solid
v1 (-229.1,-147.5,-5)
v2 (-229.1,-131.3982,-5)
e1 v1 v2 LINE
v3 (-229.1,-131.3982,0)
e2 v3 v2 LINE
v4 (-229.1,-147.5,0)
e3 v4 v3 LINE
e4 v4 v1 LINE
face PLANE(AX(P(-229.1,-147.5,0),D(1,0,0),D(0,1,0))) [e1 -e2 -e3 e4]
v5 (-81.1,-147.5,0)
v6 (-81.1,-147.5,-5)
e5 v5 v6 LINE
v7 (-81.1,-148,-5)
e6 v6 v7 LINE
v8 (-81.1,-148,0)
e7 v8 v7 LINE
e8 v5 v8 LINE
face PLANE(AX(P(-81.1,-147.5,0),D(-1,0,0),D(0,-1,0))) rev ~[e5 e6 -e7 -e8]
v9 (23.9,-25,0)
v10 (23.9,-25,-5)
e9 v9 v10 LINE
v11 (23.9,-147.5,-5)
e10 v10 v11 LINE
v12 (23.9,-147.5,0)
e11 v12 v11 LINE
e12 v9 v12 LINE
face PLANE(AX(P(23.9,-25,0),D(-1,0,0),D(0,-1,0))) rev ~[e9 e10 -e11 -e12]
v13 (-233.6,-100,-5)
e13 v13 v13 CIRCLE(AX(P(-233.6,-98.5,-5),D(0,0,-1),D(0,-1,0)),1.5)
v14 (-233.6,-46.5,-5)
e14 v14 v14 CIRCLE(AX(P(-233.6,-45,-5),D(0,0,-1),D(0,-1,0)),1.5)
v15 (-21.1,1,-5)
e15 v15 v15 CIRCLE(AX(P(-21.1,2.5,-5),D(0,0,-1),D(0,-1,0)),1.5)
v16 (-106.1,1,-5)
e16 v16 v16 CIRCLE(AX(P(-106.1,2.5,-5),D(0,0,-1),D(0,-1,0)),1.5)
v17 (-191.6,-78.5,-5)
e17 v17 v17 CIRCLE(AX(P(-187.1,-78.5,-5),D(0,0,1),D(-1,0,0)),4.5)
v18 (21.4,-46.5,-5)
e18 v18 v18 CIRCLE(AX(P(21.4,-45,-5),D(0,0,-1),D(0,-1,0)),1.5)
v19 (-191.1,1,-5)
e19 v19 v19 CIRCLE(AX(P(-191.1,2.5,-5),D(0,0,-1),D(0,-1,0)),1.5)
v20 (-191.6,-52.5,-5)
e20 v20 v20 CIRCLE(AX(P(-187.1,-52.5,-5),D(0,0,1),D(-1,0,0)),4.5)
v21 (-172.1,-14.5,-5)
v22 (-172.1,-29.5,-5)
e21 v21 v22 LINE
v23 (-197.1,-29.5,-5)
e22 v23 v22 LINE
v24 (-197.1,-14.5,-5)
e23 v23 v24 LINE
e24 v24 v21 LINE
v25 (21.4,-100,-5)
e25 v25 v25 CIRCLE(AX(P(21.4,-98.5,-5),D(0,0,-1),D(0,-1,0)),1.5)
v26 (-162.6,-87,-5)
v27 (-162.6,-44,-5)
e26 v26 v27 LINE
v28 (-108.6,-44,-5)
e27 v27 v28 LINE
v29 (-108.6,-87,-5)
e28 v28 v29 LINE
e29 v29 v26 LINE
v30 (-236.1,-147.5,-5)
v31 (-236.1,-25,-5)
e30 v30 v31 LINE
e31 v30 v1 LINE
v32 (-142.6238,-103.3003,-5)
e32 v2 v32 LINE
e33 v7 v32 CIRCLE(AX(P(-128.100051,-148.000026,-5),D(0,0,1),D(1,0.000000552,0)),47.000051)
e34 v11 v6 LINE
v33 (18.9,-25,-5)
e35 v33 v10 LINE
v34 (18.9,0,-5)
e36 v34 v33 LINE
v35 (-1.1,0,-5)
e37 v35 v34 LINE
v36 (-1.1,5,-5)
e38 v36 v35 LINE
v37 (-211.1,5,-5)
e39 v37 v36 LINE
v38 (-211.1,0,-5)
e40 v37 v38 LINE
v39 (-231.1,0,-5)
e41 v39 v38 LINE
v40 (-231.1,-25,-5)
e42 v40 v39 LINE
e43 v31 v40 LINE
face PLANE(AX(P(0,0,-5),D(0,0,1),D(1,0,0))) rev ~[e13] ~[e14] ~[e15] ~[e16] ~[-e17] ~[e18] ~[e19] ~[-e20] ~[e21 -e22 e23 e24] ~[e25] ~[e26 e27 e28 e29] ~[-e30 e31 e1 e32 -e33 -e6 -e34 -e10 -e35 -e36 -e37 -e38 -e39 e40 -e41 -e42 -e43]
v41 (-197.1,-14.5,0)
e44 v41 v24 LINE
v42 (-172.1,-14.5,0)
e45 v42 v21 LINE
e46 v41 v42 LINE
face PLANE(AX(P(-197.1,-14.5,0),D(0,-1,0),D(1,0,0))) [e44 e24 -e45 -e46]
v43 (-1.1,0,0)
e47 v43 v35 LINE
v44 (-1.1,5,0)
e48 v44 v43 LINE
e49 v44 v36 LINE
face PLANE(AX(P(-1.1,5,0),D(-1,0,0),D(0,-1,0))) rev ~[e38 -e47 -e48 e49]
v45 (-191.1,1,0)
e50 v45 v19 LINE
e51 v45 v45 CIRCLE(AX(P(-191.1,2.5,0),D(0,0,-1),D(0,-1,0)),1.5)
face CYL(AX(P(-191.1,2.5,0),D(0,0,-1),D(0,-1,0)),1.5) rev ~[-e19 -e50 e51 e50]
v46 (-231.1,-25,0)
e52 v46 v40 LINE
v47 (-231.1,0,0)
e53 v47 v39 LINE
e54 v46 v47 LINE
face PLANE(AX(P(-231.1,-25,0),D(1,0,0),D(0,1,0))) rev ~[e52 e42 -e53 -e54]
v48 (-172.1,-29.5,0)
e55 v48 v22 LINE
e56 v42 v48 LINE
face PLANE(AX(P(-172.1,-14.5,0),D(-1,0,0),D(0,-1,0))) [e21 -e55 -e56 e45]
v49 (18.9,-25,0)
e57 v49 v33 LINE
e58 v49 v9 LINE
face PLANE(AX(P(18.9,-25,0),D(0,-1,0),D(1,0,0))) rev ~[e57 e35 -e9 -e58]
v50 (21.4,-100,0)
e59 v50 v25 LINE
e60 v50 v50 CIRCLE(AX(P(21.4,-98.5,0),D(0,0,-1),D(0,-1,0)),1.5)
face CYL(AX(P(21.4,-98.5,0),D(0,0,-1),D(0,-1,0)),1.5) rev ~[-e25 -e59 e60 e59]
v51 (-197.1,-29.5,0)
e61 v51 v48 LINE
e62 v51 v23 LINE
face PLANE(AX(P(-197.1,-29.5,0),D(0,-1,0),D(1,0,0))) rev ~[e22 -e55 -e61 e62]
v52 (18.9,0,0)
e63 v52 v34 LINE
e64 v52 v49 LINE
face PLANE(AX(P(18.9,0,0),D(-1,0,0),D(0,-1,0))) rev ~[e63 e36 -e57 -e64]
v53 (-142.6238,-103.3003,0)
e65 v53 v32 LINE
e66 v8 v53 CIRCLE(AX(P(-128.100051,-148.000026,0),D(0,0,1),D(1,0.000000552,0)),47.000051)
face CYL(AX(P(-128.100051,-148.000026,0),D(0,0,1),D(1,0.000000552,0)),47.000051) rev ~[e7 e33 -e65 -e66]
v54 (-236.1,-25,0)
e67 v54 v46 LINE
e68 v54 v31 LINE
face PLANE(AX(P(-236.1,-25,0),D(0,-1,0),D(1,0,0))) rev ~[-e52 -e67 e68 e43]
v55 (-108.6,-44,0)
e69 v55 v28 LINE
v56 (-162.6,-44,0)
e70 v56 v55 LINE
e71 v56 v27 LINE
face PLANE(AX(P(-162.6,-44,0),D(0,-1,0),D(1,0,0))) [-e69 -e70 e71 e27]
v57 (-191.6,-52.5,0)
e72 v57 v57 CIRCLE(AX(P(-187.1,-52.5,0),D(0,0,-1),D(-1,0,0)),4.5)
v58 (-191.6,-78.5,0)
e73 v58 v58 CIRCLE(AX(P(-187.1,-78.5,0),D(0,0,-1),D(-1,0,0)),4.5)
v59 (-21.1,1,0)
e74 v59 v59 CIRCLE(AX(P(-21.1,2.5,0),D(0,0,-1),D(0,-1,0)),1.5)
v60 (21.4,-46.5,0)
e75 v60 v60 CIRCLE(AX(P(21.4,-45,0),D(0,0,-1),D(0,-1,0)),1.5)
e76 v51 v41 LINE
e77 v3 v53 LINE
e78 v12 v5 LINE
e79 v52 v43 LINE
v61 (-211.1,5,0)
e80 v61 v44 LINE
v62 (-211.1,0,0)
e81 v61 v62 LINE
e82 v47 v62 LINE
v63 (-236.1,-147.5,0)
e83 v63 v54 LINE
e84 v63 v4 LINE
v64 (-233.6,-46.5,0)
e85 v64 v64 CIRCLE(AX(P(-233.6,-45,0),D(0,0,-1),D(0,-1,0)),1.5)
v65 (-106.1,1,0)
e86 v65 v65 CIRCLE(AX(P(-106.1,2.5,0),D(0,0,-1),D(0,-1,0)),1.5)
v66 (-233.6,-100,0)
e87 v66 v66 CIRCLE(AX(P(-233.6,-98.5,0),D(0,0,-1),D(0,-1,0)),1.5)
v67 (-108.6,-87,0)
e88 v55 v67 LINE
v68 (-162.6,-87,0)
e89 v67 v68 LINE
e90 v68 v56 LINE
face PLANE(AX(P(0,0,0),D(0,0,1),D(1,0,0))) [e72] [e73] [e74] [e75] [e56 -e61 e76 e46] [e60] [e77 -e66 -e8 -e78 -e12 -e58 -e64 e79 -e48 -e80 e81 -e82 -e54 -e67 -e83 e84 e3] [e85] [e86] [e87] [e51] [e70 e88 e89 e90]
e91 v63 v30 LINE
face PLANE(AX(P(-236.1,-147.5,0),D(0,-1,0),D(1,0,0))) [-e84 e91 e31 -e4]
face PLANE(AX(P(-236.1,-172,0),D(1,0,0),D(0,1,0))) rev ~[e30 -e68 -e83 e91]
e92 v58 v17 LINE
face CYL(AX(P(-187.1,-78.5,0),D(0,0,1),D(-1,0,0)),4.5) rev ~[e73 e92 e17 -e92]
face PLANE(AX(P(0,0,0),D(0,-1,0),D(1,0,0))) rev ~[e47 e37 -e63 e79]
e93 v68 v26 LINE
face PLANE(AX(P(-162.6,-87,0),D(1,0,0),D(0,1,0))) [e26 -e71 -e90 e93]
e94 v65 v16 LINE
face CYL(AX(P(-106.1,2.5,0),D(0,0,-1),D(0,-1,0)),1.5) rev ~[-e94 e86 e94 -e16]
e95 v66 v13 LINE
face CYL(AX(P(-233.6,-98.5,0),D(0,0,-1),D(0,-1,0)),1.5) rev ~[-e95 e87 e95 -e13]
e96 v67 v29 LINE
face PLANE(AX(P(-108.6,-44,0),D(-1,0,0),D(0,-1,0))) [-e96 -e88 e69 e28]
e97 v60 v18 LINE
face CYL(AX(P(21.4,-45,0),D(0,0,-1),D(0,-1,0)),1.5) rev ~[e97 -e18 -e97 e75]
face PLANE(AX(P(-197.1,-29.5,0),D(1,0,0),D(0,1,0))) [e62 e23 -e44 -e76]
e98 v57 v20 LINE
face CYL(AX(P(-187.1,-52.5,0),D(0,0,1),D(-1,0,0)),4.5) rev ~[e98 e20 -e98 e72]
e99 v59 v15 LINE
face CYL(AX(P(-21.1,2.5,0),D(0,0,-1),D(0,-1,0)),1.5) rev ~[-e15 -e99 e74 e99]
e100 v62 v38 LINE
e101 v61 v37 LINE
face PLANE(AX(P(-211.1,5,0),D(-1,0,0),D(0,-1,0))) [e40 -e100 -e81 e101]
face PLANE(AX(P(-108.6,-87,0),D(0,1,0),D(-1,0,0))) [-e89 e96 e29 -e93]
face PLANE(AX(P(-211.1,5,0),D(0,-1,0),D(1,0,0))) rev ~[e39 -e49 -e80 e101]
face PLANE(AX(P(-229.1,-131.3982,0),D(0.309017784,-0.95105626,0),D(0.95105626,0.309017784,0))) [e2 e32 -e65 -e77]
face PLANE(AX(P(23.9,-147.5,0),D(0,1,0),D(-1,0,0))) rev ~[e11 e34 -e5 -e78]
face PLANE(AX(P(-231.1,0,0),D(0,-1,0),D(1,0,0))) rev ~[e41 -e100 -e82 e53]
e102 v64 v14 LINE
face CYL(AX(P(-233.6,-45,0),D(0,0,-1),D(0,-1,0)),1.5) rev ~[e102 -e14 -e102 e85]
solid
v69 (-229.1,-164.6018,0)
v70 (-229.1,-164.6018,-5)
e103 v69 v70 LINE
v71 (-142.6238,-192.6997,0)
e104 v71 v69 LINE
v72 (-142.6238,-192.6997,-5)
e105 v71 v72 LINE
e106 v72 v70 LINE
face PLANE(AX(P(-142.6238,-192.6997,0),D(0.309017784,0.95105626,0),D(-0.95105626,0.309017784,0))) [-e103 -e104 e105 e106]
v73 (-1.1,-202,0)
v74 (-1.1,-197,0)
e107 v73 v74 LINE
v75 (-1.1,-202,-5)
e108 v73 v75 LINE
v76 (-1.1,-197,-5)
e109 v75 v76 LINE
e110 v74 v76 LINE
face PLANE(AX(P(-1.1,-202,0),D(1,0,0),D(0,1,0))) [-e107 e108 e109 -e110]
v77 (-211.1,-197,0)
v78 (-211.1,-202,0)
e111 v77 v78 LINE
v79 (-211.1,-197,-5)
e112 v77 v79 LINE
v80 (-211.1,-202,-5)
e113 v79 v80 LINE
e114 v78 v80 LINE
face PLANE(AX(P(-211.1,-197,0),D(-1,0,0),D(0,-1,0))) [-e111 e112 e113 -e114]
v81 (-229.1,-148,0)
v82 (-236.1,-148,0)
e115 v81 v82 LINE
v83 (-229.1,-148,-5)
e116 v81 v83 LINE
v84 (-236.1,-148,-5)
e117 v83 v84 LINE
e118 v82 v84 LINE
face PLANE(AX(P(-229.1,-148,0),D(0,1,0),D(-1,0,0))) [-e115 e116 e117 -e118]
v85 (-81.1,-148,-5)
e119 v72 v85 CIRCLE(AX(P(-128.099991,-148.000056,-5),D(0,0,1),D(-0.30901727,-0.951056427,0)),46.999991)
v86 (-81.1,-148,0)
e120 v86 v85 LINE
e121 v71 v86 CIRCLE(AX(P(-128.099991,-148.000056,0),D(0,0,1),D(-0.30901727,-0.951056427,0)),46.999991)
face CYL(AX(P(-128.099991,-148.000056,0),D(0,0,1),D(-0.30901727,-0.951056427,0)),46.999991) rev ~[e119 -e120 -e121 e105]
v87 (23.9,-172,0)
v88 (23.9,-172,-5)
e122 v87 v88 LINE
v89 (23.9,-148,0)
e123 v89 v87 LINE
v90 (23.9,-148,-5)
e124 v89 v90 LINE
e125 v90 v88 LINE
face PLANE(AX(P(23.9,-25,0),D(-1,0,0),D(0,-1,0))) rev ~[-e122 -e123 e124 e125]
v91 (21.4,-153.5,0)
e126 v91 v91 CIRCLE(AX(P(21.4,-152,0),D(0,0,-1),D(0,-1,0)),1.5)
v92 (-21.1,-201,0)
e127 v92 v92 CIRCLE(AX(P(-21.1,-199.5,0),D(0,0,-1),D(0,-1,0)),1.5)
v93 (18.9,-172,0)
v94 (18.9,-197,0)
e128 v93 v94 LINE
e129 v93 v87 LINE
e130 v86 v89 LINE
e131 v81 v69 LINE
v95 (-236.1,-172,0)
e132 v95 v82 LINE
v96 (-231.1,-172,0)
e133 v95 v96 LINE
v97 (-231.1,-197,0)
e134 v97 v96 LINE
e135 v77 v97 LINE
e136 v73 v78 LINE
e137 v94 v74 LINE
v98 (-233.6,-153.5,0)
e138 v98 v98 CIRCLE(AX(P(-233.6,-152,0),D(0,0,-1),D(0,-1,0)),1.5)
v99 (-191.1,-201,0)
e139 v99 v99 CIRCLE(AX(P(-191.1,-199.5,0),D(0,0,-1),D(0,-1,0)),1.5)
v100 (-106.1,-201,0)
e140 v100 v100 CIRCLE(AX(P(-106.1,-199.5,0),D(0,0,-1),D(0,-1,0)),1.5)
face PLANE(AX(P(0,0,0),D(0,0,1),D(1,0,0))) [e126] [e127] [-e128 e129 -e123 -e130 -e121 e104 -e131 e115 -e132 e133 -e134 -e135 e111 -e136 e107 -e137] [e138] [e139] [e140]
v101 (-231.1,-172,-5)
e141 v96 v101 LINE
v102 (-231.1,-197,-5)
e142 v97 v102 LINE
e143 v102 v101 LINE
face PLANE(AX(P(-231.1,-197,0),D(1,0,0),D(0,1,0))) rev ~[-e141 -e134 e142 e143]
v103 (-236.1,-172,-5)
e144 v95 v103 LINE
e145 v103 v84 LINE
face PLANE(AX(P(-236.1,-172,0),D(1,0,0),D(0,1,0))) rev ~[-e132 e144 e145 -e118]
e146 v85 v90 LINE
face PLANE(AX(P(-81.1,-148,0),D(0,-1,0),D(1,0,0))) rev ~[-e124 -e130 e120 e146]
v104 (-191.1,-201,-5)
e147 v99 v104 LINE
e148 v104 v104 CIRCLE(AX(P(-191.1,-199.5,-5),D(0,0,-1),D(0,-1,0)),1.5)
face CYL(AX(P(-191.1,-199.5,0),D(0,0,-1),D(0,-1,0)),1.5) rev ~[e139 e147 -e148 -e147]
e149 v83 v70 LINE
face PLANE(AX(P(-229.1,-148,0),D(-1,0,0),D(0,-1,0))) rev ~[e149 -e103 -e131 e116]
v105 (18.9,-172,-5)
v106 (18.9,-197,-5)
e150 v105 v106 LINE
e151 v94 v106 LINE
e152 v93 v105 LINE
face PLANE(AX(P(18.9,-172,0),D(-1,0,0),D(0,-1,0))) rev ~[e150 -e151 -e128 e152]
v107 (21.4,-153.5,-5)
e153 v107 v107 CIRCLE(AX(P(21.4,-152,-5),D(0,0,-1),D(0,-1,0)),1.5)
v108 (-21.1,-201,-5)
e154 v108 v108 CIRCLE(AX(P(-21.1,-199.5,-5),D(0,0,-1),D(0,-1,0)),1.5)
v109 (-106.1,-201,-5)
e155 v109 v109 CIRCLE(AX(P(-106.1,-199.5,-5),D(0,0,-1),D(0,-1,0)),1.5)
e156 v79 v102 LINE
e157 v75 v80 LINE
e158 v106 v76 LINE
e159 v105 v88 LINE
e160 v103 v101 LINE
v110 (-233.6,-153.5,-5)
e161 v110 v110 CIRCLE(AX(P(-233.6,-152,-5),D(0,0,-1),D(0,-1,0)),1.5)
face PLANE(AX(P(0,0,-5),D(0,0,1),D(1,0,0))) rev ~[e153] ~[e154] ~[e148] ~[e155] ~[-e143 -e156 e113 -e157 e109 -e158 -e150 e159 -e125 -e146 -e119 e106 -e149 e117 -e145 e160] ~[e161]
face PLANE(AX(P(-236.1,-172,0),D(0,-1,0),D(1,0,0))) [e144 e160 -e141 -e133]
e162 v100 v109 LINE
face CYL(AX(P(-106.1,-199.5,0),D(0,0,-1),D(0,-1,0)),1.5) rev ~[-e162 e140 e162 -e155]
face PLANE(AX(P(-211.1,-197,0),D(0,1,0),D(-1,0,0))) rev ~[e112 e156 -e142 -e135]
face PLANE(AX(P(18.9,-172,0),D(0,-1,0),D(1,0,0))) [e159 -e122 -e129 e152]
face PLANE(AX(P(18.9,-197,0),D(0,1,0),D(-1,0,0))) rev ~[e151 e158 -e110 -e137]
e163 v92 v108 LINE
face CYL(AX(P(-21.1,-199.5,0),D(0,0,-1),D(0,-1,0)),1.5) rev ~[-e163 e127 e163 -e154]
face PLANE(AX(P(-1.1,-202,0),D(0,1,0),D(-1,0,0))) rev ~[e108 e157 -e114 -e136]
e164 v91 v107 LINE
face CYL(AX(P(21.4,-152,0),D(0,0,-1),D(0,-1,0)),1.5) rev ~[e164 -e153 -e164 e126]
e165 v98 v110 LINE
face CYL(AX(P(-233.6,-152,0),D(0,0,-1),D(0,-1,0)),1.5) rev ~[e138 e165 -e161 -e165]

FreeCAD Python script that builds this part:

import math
import FreeCAD as App
import Part
import Sketcher

V = App.Vector
Q = App.Units.Quantity

doc = App.newDocument("Part")
body = doc.addObject("PartDesign::Body", "Body")
body.AllowCompound = True

# Sketch on XY plane
sketch1 = doc.addObject("Sketcher::SketchObject", "Sketch")
body.addObject(sketch1)
sketch1.AttachmentSupport = (doc.XY_Plane, [""])
sketch1.MapMode = "FlatFace"
sketch1.addGeometry(Part.LineSegment(V(-211, -202, 0), V(-1, -202, 0)), False)
sketch1.addGeometry(Part.LineSegment(V(-1, -202, 0), V(-1, -197, 0)), False)
sketch1.addGeometry(Part.LineSegment(V(-1, -197, 0), V(19, -197, 0)), False)
sketch1.addGeometry(Part.LineSegment(V(19, -197, 0), V(19, -172, 0)), False)
sketch1.addGeometry(Part.LineSegment(V(19, -172, 0), V(24, -172, 0)), False)
sketch1.addGeometry(Part.LineSegment(V(24, -172, 0), V(24, -25, 0)), False)
sketch1.addGeometry(Part.LineSegment(V(24, -25, 0), V(19, -25, 0)), False)
sketch1.addGeometry(Part.LineSegment(V(19, -25, 0), V(19, 0, 0)), False)
sketch1.addGeometry(Part.LineSegment(V(19, 0, 0), V(-1, 0, 0)), False)
sketch1.addGeometry(Part.LineSegment(V(-1, 0, 0), V(-1, 5, 0)), False)
sketch1.addGeometry(Part.LineSegment(V(-1, 5, 0), V(-211, 5, 0)), False)
sketch1.addGeometry(Part.LineSegment(V(-211, 5, 0), V(-211, 0, 0)), False)
sketch1.addGeometry(Part.LineSegment(V(-211, 0, 0), V(-231, 0, 0)), False)
sketch1.addGeometry(Part.LineSegment(V(-231, 0, 0), V(-231, -25, 0)), False)
sketch1.addGeometry(Part.LineSegment(V(-231, -25, 0), V(-236, -25, 0)), False)
sketch1.addGeometry(Part.LineSegment(V(-236, -25, 0), V(-236, -172, 0)), False)
sketch1.addGeometry(Part.LineSegment(V(-236, -172, 0), V(-231, -172, 0)), False)
sketch1.addGeometry(Part.LineSegment(V(-231, -172, 0), V(-231, -197, 0)), False)
sketch1.addGeometry(Part.LineSegment(V(-231, -197, 0), V(-211, -197, 0)), False)
sketch1.addGeometry(Part.LineSegment(V(-211, -197, 0), V(-211, -202, 0)), False)
sketch1.addConstraint(Sketcher.Constraint("Coincident", 0, 2, 1, 1))
sketch1.addConstraint(Sketcher.Constraint("Coincident", 1, 2, 2, 1))
sketch1.addConstraint(Sketcher.Constraint("Coincident", 2, 2, 3, 1))
sketch1.addConstraint(Sketcher.Constraint("Coincident", 3, 2, 4, 1))
sketch1.addConstraint(Sketcher.Constraint("Coincident", 4, 2, 5, 1))
sketch1.addConstraint(Sketcher.Constraint("Coincident", 5, 2, 6, 1))
sketch1.addConstraint(Sketcher.Constraint("Coincident", 6, 2, 7, 1))
sketch1.addConstraint(Sketcher.Constraint("Coincident", 7, 2, 8, 1))
sketch1.addConstraint(Sketcher.Constraint("Coincident", 8, 2, 9, 1))
sketch1.addConstraint(Sketcher.Constraint("Coincident", 9, 2, 10, 1))
sketch1.addConstraint(Sketcher.Constraint("Coincident", 10, 2, 11, 1))
sketch1.addConstraint(Sketcher.Constraint("Coincident", 11, 2, 12, 1))
sketch1.addConstraint(Sketcher.Constraint("Coincident", 12, 2, 13, 1))
sketch1.addConstraint(Sketcher.Constraint("Coincident", 13, 2, 14, 1))
sketch1.addConstraint(Sketcher.Constraint("Coincident", 14, 2, 15, 1))
sketch1.addConstraint(Sketcher.Constraint("Coincident", 15, 2, 16, 1))
sketch1.addConstraint(Sketcher.Constraint("Coincident", 16, 2, 17, 1))
sketch1.addConstraint(Sketcher.Constraint("Coincident", 17, 2, 18, 1))
sketch1.addConstraint(Sketcher.Constraint("Coincident", 18, 2, 19, 1))
sketch1.addConstraint(Sketcher.Constraint("Coincident", 19, 2, 0, 1))
sketch1.addConstraint(Sketcher.Constraint("Horizontal", 0))
sketch1.addConstraint(Sketcher.Constraint("Vertical", 1))
sketch1.addConstraint(Sketcher.Constraint("Horizontal", 2))
sketch1.addConstraint(Sketcher.Constraint("Vertical", 3))
sketch1.addConstraint(Sketcher.Constraint("Horizontal", 4))
sketch1.addConstraint(Sketcher.Constraint("Vertical", 5))
sketch1.addConstraint(Sketcher.Constraint("Horizontal", 6))
sketch1.addConstraint(Sketcher.Constraint("Vertical", 7))
sketch1.addConstraint(Sketcher.Constraint("Horizontal", 8))
sketch1.addConstraint(Sketcher.Constraint("Vertical", 9))
sketch1.addConstraint(Sketcher.Constraint("Horizontal", 10))
sketch1.addConstraint(Sketcher.Constraint("Vertical", 11))
sketch1.addConstraint(Sketcher.Constraint("Horizontal", 12))
sketch1.addConstraint(Sketcher.Constraint("Vertical", 13))
sketch1.addConstraint(Sketcher.Constraint("Horizontal", 14))
sketch1.addConstraint(Sketcher.Constraint("Vertical", 15))
sketch1.addConstraint(Sketcher.Constraint("Horizontal", 16))
sketch1.addConstraint(Sketcher.Constraint("Vertical", 17))
sketch1.addConstraint(Sketcher.Constraint("Horizontal", 18))
sketch1.addConstraint(Sketcher.Constraint("Vertical", 19))
sketch1.addConstraint(Sketcher.Constraint("PointOnObject", 7, 2, -1))
sketch1.addConstraint(Sketcher.Constraint("PointOnObject", 11, 2, -1))
sketch1.addConstraint(Sketcher.Constraint("Horizontal", 6, 2, 13, 2))
sketch1.addConstraint(Sketcher.Constraint("Horizontal", 4, 2, 15, 2))
sketch1.addConstraint(Sketcher.Constraint("Horizontal", 2, 2, 17, 2))
sketch1.addConstraint(Sketcher.Constraint("Vertical", 3, 2, 6, 2))
sketch1.addConstraint(Sketcher.Constraint("Vertical", 1, 2, 8, 2))
sketch1.addConstraint(Sketcher.Constraint("Vertical", 13, 2, 16, 2))
sketch1.addConstraint(Sketcher.Constraint("Vertical", 11, 2, 18, 2))
sketch1.addConstraint(Sketcher.Constraint("Equal", 8, 12))
sketch1.addConstraint(Sketcher.Constraint("Equal", 6, 14))
sketch1.addConstraint(Sketcher.Constraint("Equal", 16, 1))
sketch1.addConstraint(Sketcher.Constraint("Equal", 3, 7))
sketch1.addConstraint(Sketcher.Constraint("Equal", 1, 9))
sketch1.addConstraint(Sketcher.Constraint("DistanceX", 0, 1, 0, 2, Q("210 mm")))
sketch1.addConstraint(Sketcher.Constraint("DistanceX", 2, 1, 2, 2, Q("20 mm")))
sketch1.addConstraint(Sketcher.Constraint("DistanceX", 4, 1, 4, 2, Q("5 mm")))
sketch1.addConstraint(Sketcher.Constraint("DistanceY", 3, 1, 3, 2, Q("25 mm")))
sketch1.addConstraint(Sketcher.Constraint("DistanceY", 5, 1, 5, 2, Q("147 mm")))
sketch1.addConstraint(Sketcher.Constraint("DistanceX", 0, 2, -1, 1, Q("1.1 mm")))
pad1 = doc.addObject("PartDesign::Pad", "Pad")
body.addObject(pad1)
pad1.Profile = sketch1
pad1.Length = 5
pad1.Reversed = True

# Sketch on XY plane
sketch2 = doc.addObject("Sketcher::SketchObject", "Sketch001")
body.addObject(sketch2)
sketch2.AttachmentSupport = (doc.XY_Plane, [""])
sketch2.MapMode = "FlatFace"
sketch2.addGeometry(Part.Circle(V(-21.1, 2.5, 0), V(0, 0, 1), 1.5), False)
sketch2.addGeometry(Part.Circle(V(-106.1, 2.5, 0), V(0, 0, 1), 1.5), False)
sketch2.addGeometry(Part.Circle(V(-191.1, 2.5, 0), V(0, 0, 1), 1.5), False)
sketch2.addGeometry(Part.Circle(V(-233.6, -45, 0), V(0, 0, 1), 1.5), False)
sketch2.addGeometry(Part.Circle(V(-233.6, -98.5, 0), V(0, 0, 1), 1.5), False)
sketch2.addGeometry(Part.Circle(V(-233.6, -152, 0), V(0, 0, 1), 1.5), False)
sketch2.addGeometry(Part.Circle(V(-191.1, -199.5, 0), V(0, 0, 1), 1.5), False)
sketch2.addGeometry(Part.Circle(V(-106.1, -199.5, 0), V(0, 0, 1), 1.5), False)
sketch2.addGeometry(Part.Circle(V(-21.1, -199.5, 0), V(0, 0, 1), 1.5), False)
sketch2.addGeometry(Part.Circle(V(21.4, -152, 0), V(0, 0, 1), 1.5), False)
sketch2.addGeometry(Part.Circle(V(21.4, -98.5, 0), V(0, 0, 1), 1.5), False)
sketch2.addGeometry(Part.Circle(V(21.4, -45, 0), V(0, 0, 1), 1.5), False)
sketch2.addConstraint(Sketcher.Constraint("Equal", 0, 1))
sketch2.addConstraint(Sketcher.Constraint("Equal", 1, 2))
sketch2.addConstraint(Sketcher.Constraint("Equal", 2, 3))
sketch2.addConstraint(Sketcher.Constraint("Equal", 3, 4))
sketch2.addConstraint(Sketcher.Constraint("Equal", 4, 5))
sketch2.addConstraint(Sketcher.Constraint("Equal", 5, 6))
sketch2.addConstraint(Sketcher.Constraint("Equal", 6, 7))
sketch2.addConstraint(Sketcher.Constraint("Equal", 7, 8))
sketch2.addConstraint(Sketcher.Constraint("Equal", 8, 9))
sketch2.addConstraint(Sketcher.Constraint("Equal", 9, 10))
sketch2.addConstraint(Sketcher.Constraint("Equal", 10, 11))
sketch2.addConstraint(Sketcher.Constraint("Horizontal", 0, 3, 1, 3))
sketch2.addConstraint(Sketcher.Constraint("Horizontal", 1, 3, 2, 3))
sketch2.addConstraint(Sketcher.Constraint("Horizontal", 6, 3, 7, 3))
sketch2.addConstraint(Sketcher.Constraint("Horizontal", 7, 3, 8, 3))
sketch2.addConstraint(Sketcher.Constraint("Horizontal", 5, 3, 9, 3))
sketch2.addConstraint(Sketcher.Constraint("Horizontal", 4, 3, 10, 3))
sketch2.addConstraint(Sketcher.Constraint("Horizontal", 3, 3, 11, 3))
sketch2.addConstraint(Sketcher.Constraint("Vertical", 3, 3, 4, 3))
sketch2.addConstraint(Sketcher.Constraint("Vertical", 4, 3, 5, 3))
sketch2.addConstraint(Sketcher.Constraint("Vertical", 2, 3, 6, 3))
sketch2.addConstraint(Sketcher.Constraint("Vertical", 1, 3, 7, 3))
sketch2.addConstraint(Sketcher.Constraint("Vertical", 0, 3, 8, 3))
sketch2.addConstraint(Sketcher.Constraint("Vertical", 9, 3, 10, 3))
sketch2.addConstraint(Sketcher.Constraint("Vertical", 10, 3, 11, 3))
sketch2.addConstraint(Sketcher.Constraint("Diameter", 0, Q("3 mm")))
sketch2.addConstraint(Sketcher.Constraint("DistanceY", 3, 3, -1, 1, Q("45 mm")))
sketch2.addConstraint(Sketcher.Constraint("DistanceY", 5, 3, -1, 1, Q("152 mm")))
sketch2.addConstraint(Sketcher.Constraint("DistanceX", 1, 3, 0, 3, Q("85 mm")))
sketch2.addConstraint(Sketcher.Constraint("DistanceX", 2, 3, 1, 3, Q("85 mm")))
sketch2.addConstraint(Sketcher.Constraint("DistanceY", 4, 3, 2, 3, Q("101 mm")))
sketch2.addConstraint(Sketcher.Constraint("DistanceY", 6, 3, 4, 3, Q("101 mm")))
sketch2.addConstraint(Sketcher.Constraint("DistanceX", 0, 3, -1, 1, Q("21.1 mm")))
sketch2.addConstraint(Sketcher.Constraint("DistanceY", -1, 1, 0, 3, Q("2.5 mm")))
sketch2.addConstraint(Sketcher.Constraint("DistanceX", 3, 3, -1, 1, Q("233.6 mm")))
sketch2.addConstraint(Sketcher.Constraint("DistanceX", -1, 1, 9, 3, Q("21.4 mm")))
doc.recompute()
hole = doc.addObject("PartDesign::Hole", "Hole")
body.addObject(hole)
hole.Profile = sketch2
hole.ThreadType = "None"
hole.Diameter = 3
hole.DepthType = "ThroughAll"

# Sketch on XY plane
sketch3 = doc.addObject("Sketcher::SketchObject", "Sketch002")
body.addObject(sketch3)
sketch3.AttachmentSupport = (doc.XY_Plane, [""])
sketch3.MapMode = "FlatFace"
sketch3.addGeometry(Part.ArcOfCircle(Part.Circle(V(-128.1, -148, 0), V(0, 0, 1), 47), math.radians(-108), math.radians(0)), False)
sketch3.addGeometry(Part.ArcOfCircle(Part.Circle(V(-128.1, -148, 0), V(0, 0, 1), 47), math.radians(0), math.radians(108)), False)
sketch3.addGeometry(Part.LineSegment(V(-142.6, -103.3, 0), V(-229.1, -131.4, 0)), False)
sketch3.addGeometry(Part.LineSegment(V(-229.1, -131.4, 0), V(-229.1, -147.5, 0)), False)
sketch3.addGeometry(Part.LineSegment(V(-229.1, -147.5, 0), V(-236.1, -147.5, 0)), False)
sketch3.addGeometry(Part.LineSegment(V(-236.1, -147.5, 0), V(-236.1, -148, 0)), False)
sketch3.addGeometry(Part.LineSegment(V(-236.1, -148, 0), V(-229.1, -148, 0)), False)
sketch3.addGeometry(Part.LineSegment(V(-229.1, -148, 0), V(-229.1, -164.6, 0)), False)
sketch3.addGeometry(Part.LineSegment(V(-229.1, -164.6, 0), V(-142.6, -192.7, 0)), False)
sketch3.addGeometry(Part.LineSegment(V(-81.1, -147.5, 0), V(-81.1, -148, 0)), False)
sketch3.addGeometry(Part.LineSegment(V(-81.1, -148, 0), V(23.9, -148, 0)), False)
sketch3.addGeometry(Part.LineSegment(V(23.9, -148, 0), V(23.9, -147.5, 0)), False)
sketch3.addGeometry(Part.LineSegment(V(23.9, -147.5, 0), V(-81.1, -147.5, 0)), False)
sketch3.addGeometry(Part.LineSegment(V(-162.6, -87, 0), V(-108.6, -87, 0)), False)
sketch3.addGeometry(Part.LineSegment(V(-108.6, -87, 0), V(-108.6, -44, 0)), False)
sketch3.addGeometry(Part.LineSegment(V(-108.6, -44, 0), V(-162.6, -44, 0)), False)
sketch3.addGeometry(Part.LineSegment(V(-162.6, -44, 0), V(-162.6, -87, 0)), False)
sketch3.addGeometry(Part.Circle(V(-187.1, -52.5, 0), V(0, 0, 1), 4.5), False)
sketch3.addGeometry(Part.Circle(V(-187.1, -78.5, 0), V(0, 0, 1), 4.5), False)
sketch3.addGeometry(Part.LineSegment(V(-172.1, -29.5, 0), V(-172.1, -14.5, 0)), False)
sketch3.addGeometry(Part.LineSegment(V(-172.1, -14.5, 0), V(-197.1, -14.5, 0)), False)
sketch3.addGeometry(Part.LineSegment(V(-197.1, -14.5, 0), V(-197.1, -29.5, 0)), False)
sketch3.addGeometry(Part.LineSegment(V(-197.1, -29.5, 0), V(-172.1, -29.5, 0)), False)
sketch3.addConstraint(Sketcher.Constraint("Tangent", 0, 2, 1, 1))
sketch3.addConstraint(Sketcher.Constraint("Tangent", 1, 2, 2, 1))
sketch3.addConstraint(Sketcher.Constraint("Coincident", 2, 2, 3, 1))
sketch3.addConstraint(Sketcher.Constraint("Coincident", 3, 2, 4, 1))
sketch3.addConstraint(Sketcher.Constraint("Coincident", 4, 2, 5, 1))
sketch3.addConstraint(Sketcher.Constraint("Coincident", 5, 2, 6, 1))
sketch3.addConstraint(Sketcher.Constraint("Coincident", 6, 2, 7, 1))
sketch3.addConstraint(Sketcher.Constraint("Coincident", 7, 2, 8, 1))
sketch3.addConstraint(Sketcher.Constraint("Tangent", 8, 2, 0, 1))
sketch3.addConstraint(Sketcher.Constraint("Coincident", 9, 2, 10, 1))
sketch3.addConstraint(Sketcher.Constraint("Coincident", 10, 2, 11, 1))
sketch3.addConstraint(Sketcher.Constraint("Coincident", 11, 2, 12, 1))
sketch3.addConstraint(Sketcher.Constraint("Coincident", 12, 2, 9, 1))
sketch3.addConstraint(Sketcher.Constraint("Coincident", 13, 2, 14, 1))
sketch3.addConstraint(Sketcher.Constraint("Coincident", 14, 2, 15, 1))
sketch3.addConstraint(Sketcher.Constraint("Coincident", 15, 2, 16, 1))
sketch3.addConstraint(Sketcher.Constraint("Coincident", 16, 2, 13, 1))
sketch3.addConstraint(Sketcher.Constraint("Coincident", 19, 2, 20, 1))
sketch3.addConstraint(Sketcher.Constraint("Coincident", 20, 2, 21, 1))
sketch3.addConstraint(Sketcher.Constraint("Coincident", 21, 2, 22, 1))
sketch3.addConstraint(Sketcher.Constraint("Coincident", 22, 2, 19, 1))
sketch3.addConstraint(Sketcher.Constraint("Vertical", 3))
sketch3.addConstraint(Sketcher.Constraint("Horizontal", 4))
sketch3.addConstraint(Sketcher.Constraint("Vertical", 5))
sketch3.addConstraint(Sketcher.Constraint("Horizontal", 6))
sketch3.addConstraint(Sketcher.Constraint("Vertical", 7))
sketch3.addConstraint(Sketcher.Constraint("Vertical", 9))
sketch3.addConstraint(Sketcher.Constraint("Horizontal", 10))
sketch3.addConstraint(Sketcher.Constraint("Vertical", 11))
sketch3.addConstraint(Sketcher.Constraint("Horizontal", 12))
sketch3.addConstraint(Sketcher.Constraint("Horizontal", 13))
sketch3.addConstraint(Sketcher.Constraint("Vertical", 14))
sketch3.addConstraint(Sketcher.Constraint("Horizontal", 15))
sketch3.addConstraint(Sketcher.Constraint("Vertical", 16))
sketch3.addConstraint(Sketcher.Constraint("Vertical", 19))
sketch3.addConstraint(Sketcher.Constraint("Horizontal", 20))
sketch3.addConstraint(Sketcher.Constraint("Vertical", 21))
sketch3.addConstraint(Sketcher.Constraint("Horizontal", 22))
sketch3.addConstraint(Sketcher.Constraint("Coincident", 9, 2, 0, 2))
sketch3.addConstraint(Sketcher.Constraint("Equal", 0, 1))
sketch3.addConstraint(Sketcher.Constraint("Equal", 17, 18))
sketch3.addConstraint(Sketcher.Constraint("Horizontal", 1, 3, 0, 2))
sketch3.addConstraint(Sketcher.Constraint("Horizontal", 0, 2, 5, 2))
sketch3.addConstraint(Sketcher.Constraint("Horizontal", 4, 2, 11, 2))
sketch3.addConstraint(Sketcher.Constraint("Vertical", 17, 3, 18, 3))
sketch3.addConstraint(Sketcher.Constraint("Vertical", 3, 2, 6, 2))
sketch3.addConstraint(Sketcher.Constraint("Vertical", 1, 2, 8, 2))
sketch3.addConstraint(Sketcher.Constraint("Diameter", 17, Q("9 mm")))
sketch3.addConstraint(Sketcher.Constraint("DistanceY", 5, 2, 5, 1, Q("0.5 mm")))
sketch3.addConstraint(Sketcher.Constraint("Radius", 0, Q("47 mm")))
sketch3.addConstraint(Sketcher.Constraint("DistanceX", 4, 2, 4, 1, Q("7 mm")))
sketch3.addConstraint(Sketcher.Constraint("DistanceX", 10, 1, 10, 2, Q("105 mm")))
sketch3.addConstraint(Sketcher.Constraint("DistanceX", 13, 1, 13, 2, Q("54 mm")))
sketch3.addConstraint(Sketcher.Constraint("DistanceX", 20, 2, 20, 1, Q("25 mm")))
sketch3.addConstraint(Sketcher.Constraint("DistanceY", 14, 1, 14, 2, Q("43 mm")))
sketch3.addConstraint(Sketcher.Constraint("DistanceY", 19, 1, 19, 2, Q("15 mm")))
sketch3.addConstraint(Sketcher.Constraint("Angle", 2, Q("-162 deg")))
sketch3.addConstraint(Sketcher.Constraint("DistanceY", 0, 3, -1, 1, Q("148 mm")))
sketch3.addConstraint(Sketcher.Constraint("DistanceY", 13, 2, -1, 1, Q("87 mm")))
sketch3.addConstraint(Sketcher.Constraint("DistanceX", 17, 3, 0, 3, Q("59 mm")))
sketch3.addConstraint(Sketcher.Constraint("DistanceY", 18, 3, 17, 3, Q("26 mm")))
sketch3.addConstraint(Sketcher.Constraint("DistanceX", 2, 2, 18, 3, Q("42 mm")))
sketch3.addConstraint(Sketcher.Constraint("DistanceY", 3, 2, 18, 3, Q("69 mm")))
sketch3.addConstraint(Sketcher.Constraint("DistanceX", 17, 3, 19, 2, Q("15 mm")))
sketch3.addConstraint(Sketcher.Constraint("DistanceY", 17, 3, 19, 2, Q("38 mm")))
sketch3.addConstraint(Sketcher.Constraint("DistanceX", 0, 3, -1, 1, Q("128.1 mm")))
sketch3.addConstraint(Sketcher.Constraint("DistanceX", 13, 2, -1, 1, Q("108.6 mm")))
pocket1 = doc.addObject("PartDesign::Pocket", "Pocket")
body.addObject(pocket1)
pocket1.Profile = sketch3
pocket1.Type = "ThroughAll"

doc.recompute()
